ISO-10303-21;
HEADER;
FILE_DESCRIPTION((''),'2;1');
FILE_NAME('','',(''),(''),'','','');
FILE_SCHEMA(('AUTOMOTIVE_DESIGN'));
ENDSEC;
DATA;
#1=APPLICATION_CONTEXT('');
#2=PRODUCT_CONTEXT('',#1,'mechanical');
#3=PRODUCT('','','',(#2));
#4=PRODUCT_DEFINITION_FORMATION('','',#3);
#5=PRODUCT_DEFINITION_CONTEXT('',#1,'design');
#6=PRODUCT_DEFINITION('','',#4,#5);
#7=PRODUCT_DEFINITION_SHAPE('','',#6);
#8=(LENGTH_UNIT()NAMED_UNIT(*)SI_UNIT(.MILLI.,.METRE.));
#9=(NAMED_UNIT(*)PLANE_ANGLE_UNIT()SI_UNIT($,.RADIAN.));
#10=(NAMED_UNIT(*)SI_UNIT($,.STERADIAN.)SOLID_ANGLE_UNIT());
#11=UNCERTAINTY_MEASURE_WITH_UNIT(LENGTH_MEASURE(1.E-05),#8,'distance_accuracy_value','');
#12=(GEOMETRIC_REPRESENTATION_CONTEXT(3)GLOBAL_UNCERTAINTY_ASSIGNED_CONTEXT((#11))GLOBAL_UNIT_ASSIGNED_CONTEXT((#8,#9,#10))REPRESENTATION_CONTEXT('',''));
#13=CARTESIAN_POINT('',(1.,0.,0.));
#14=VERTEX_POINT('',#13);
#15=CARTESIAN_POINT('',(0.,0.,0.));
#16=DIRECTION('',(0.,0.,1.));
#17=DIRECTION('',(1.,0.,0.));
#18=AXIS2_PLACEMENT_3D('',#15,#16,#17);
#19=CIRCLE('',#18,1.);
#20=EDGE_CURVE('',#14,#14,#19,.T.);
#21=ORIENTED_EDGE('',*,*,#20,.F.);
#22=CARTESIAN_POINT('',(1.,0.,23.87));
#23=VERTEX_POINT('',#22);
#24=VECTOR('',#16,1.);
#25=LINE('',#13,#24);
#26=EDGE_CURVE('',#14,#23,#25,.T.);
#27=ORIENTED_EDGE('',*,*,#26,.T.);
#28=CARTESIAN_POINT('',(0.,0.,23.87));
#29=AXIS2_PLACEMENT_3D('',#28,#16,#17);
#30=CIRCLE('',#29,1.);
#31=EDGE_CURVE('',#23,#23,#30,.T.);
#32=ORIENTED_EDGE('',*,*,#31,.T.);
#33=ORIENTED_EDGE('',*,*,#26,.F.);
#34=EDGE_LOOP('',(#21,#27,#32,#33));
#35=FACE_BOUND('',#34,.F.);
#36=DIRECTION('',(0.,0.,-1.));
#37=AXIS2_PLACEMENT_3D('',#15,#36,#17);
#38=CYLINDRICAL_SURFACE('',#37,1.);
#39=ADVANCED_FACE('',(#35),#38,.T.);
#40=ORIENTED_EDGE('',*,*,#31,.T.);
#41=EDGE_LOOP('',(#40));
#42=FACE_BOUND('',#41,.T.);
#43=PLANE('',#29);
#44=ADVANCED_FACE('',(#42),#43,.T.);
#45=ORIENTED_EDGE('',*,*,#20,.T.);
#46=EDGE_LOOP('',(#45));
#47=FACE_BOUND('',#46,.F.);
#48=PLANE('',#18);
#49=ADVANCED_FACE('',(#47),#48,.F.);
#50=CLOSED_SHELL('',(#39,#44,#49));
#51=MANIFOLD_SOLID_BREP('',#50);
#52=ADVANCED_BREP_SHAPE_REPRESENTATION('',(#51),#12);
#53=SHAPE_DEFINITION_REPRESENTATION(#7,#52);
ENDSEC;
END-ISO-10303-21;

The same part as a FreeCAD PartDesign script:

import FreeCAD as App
import Part
import Sketcher
from FreeCAD import Vector

doc = App.newDocument("Part")
params = doc.addObject("Spreadsheet::Sheet", "Params")
for row, (alias, value) in enumerate([
    ("sketch1_diameter", "2 mm"),
    ("pad1_length", "23.87 mm"),
], start=1):
    params.set(f"A{row}", alias)
    params.set(f"B{row}", "=" + value)
    params.setAlias(f"B{row}", alias)

body = doc.addObject("PartDesign::Body", "Body")

sketch1 = body.newObject("Sketcher::SketchObject", "Sketch")
sketch1.AttachmentSupport = (doc.getObject("XY_Plane"), [""])
sketch1.MapMode = "FlatFace"
sketch1.addGeometry(Part.Circle(Vector(0, 0, 0), Vector(0, 0, 1), 1), False)
sketch1.addConstraint(Sketcher.Constraint("Coincident", 0, 3, -1, 1))
sketch1.addConstraint(Sketcher.Constraint("Diameter", 0, 2.0))
sketch1.setExpression("Constraints[1]", "Params.sketch1_diameter")
pad1 = body.newObject("PartDesign::Pad", "Pad")
pad1.Profile = sketch1
pad1.setExpression("Length", "Params.pad1_length")

doc.recompute()
